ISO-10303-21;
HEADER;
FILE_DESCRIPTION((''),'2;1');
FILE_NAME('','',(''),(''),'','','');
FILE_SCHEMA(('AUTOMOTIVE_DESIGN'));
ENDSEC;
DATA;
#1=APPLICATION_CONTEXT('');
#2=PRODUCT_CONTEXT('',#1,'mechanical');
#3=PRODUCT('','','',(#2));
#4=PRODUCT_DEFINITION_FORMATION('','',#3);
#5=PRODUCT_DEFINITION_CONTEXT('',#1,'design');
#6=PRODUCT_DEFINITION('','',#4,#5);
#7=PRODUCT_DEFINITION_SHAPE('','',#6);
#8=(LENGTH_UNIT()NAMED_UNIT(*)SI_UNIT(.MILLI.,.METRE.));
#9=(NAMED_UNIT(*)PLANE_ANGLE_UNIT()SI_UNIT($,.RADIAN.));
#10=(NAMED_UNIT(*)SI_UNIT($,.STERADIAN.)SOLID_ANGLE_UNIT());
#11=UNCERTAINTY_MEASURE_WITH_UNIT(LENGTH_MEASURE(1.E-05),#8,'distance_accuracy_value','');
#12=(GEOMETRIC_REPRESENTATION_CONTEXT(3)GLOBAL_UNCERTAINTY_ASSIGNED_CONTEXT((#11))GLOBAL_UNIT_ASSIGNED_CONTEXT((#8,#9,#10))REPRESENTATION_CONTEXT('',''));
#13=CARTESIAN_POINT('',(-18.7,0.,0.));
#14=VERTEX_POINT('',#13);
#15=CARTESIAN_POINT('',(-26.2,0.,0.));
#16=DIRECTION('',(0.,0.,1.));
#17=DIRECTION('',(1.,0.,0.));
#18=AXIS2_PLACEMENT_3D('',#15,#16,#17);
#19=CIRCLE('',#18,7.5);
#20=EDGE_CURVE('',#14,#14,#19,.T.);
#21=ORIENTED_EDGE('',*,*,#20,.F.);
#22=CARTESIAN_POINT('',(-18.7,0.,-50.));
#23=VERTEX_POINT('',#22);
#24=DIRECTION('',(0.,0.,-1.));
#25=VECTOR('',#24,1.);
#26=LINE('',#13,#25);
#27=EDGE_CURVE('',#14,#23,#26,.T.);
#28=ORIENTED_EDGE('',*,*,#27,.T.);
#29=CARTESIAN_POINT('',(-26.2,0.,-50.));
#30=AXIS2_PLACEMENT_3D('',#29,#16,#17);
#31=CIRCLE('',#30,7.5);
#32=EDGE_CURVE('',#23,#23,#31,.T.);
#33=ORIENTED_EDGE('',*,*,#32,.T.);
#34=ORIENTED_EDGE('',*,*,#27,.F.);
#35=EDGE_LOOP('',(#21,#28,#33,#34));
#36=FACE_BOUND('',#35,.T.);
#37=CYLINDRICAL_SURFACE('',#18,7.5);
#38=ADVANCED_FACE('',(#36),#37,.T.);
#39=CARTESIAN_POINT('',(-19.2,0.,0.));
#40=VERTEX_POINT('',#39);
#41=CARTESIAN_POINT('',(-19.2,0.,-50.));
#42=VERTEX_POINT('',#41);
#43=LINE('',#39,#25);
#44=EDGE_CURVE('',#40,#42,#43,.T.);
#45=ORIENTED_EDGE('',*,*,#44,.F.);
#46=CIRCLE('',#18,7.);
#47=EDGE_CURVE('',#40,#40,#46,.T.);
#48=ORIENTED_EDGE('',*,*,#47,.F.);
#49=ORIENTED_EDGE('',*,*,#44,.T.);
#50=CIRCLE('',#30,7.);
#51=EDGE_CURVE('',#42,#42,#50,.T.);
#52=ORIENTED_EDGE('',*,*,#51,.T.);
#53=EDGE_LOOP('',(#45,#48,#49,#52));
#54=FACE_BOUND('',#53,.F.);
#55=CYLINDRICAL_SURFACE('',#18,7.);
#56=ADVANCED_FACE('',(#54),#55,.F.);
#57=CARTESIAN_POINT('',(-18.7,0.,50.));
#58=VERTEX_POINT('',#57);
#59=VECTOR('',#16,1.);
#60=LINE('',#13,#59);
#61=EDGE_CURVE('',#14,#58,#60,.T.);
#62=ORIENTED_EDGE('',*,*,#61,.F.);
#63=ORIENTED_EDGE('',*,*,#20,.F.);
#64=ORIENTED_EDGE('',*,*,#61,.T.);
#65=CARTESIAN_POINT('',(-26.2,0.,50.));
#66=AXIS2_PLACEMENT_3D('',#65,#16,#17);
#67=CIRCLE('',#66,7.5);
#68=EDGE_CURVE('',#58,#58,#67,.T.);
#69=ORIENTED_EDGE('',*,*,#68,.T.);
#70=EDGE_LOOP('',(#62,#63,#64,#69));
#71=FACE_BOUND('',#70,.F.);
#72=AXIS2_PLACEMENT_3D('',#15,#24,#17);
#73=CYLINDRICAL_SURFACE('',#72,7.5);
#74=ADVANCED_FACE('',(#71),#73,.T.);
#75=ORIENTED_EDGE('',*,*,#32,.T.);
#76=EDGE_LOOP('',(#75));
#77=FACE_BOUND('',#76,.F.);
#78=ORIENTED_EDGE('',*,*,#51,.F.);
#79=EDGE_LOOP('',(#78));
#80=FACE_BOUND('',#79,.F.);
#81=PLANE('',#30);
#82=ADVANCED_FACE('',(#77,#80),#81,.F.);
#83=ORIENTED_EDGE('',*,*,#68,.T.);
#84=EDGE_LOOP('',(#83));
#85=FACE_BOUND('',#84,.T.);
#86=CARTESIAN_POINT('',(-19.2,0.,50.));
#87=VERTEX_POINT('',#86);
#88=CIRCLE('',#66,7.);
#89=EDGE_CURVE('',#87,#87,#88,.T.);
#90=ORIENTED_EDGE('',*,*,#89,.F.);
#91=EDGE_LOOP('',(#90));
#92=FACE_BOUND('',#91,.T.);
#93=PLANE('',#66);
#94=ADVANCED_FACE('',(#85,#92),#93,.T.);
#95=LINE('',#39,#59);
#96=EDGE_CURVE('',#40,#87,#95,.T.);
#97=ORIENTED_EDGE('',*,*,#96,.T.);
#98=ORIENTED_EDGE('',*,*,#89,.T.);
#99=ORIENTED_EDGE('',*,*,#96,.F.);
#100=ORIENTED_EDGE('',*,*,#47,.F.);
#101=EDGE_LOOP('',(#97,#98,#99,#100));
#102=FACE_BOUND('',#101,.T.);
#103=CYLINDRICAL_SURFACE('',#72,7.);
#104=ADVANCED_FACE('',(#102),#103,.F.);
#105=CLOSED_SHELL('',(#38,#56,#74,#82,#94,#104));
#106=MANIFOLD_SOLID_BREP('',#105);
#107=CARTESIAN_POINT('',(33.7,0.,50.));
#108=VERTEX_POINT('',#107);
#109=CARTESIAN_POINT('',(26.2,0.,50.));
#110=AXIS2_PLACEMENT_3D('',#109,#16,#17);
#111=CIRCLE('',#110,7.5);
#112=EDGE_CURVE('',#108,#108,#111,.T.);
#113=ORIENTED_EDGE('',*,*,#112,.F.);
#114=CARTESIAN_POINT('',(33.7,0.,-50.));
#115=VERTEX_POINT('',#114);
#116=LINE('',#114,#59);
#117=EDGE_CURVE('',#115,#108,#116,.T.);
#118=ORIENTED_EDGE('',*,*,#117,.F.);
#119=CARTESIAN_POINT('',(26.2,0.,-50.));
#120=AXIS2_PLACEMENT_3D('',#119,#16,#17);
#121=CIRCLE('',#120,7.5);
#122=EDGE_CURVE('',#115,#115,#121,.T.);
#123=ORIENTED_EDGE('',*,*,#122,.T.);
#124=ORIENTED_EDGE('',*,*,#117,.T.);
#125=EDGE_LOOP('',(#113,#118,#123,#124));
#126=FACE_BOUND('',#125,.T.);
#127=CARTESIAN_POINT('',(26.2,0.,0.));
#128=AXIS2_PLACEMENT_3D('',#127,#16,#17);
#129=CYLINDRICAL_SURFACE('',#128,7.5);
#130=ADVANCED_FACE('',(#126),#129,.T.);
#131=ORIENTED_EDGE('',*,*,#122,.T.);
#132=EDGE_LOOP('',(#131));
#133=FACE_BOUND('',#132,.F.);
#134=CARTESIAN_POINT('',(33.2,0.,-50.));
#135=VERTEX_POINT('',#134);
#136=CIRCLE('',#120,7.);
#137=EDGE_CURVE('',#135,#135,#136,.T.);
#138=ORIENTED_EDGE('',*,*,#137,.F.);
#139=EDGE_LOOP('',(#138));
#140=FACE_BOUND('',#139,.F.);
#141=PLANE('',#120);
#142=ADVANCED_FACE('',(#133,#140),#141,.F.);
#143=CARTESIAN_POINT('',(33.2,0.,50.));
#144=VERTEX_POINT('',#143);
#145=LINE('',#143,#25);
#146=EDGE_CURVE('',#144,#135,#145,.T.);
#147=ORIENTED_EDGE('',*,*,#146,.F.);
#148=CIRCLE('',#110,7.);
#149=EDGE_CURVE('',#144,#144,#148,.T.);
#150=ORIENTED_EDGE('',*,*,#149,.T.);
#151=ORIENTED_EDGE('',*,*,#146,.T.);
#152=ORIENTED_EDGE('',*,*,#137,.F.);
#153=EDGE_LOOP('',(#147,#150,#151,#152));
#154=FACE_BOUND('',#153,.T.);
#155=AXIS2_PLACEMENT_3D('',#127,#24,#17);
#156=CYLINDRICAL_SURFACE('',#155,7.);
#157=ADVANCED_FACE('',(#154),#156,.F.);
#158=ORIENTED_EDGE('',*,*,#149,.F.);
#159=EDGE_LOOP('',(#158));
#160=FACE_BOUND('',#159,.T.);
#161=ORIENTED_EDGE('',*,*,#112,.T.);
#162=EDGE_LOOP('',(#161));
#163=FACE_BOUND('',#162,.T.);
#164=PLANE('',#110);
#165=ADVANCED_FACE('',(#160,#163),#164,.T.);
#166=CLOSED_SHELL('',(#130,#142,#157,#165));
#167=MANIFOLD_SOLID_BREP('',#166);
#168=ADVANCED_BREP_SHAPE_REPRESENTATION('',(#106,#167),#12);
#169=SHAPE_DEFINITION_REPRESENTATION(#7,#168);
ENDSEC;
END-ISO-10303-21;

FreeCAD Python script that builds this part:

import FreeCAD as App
import Part
import Sketcher

doc = App.newDocument("Part")
body = doc.addObject("PartDesign::Body", "Body")
body.AllowCompound = True

# Sketch on XY plane
sketch1 = body.newObject("Sketcher::SketchObject", "Sketch")
sketch1.AttachmentSupport = (doc.getObject("XY_Plane"), [""])
sketch1.MapMode = "FlatFace"
sketch1.addGeometry([
    Part.Circle(App.Vector(-26.2, 0, 0), App.Vector(0, 0, 1), 7.5),
    Part.Circle(App.Vector(-26.2, 0, 0), App.Vector(0, 0, 1), 7),
    Part.Circle(App.Vector(26.2, 0, 0), App.Vector(0, 0, 1), 7.5),
    Part.Circle(App.Vector(26.2, 0, 0), App.Vector(0, 0, 1), 7),
], False)
sketch1.addConstraint([
    Sketcher.Constraint("Coincident", 1, 3, 0, 3),
    Sketcher.Constraint("Coincident", 3, 3, 2, 3),
    Sketcher.Constraint("Equal", 0, 2),
    Sketcher.Constraint("Equal", 1, 3),
    Sketcher.Constraint("Symmetric", 0, 3, 2, 3, -1, 1),
    Sketcher.Constraint("PointOnObject", 0, 3, -1),
    Sketcher.Constraint("Diameter", 0, 15.0),
    Sketcher.Constraint("Diameter", 1, 14.0),
    Sketcher.Constraint("DistanceX", 0, 3, -1, 1, 26.2),
])
pad1 = body.newObject("PartDesign::Pad", "Pad")
pad1.Profile = sketch1
pad1.Length = 100
pad1.Midplane = True

doc.recompute()
